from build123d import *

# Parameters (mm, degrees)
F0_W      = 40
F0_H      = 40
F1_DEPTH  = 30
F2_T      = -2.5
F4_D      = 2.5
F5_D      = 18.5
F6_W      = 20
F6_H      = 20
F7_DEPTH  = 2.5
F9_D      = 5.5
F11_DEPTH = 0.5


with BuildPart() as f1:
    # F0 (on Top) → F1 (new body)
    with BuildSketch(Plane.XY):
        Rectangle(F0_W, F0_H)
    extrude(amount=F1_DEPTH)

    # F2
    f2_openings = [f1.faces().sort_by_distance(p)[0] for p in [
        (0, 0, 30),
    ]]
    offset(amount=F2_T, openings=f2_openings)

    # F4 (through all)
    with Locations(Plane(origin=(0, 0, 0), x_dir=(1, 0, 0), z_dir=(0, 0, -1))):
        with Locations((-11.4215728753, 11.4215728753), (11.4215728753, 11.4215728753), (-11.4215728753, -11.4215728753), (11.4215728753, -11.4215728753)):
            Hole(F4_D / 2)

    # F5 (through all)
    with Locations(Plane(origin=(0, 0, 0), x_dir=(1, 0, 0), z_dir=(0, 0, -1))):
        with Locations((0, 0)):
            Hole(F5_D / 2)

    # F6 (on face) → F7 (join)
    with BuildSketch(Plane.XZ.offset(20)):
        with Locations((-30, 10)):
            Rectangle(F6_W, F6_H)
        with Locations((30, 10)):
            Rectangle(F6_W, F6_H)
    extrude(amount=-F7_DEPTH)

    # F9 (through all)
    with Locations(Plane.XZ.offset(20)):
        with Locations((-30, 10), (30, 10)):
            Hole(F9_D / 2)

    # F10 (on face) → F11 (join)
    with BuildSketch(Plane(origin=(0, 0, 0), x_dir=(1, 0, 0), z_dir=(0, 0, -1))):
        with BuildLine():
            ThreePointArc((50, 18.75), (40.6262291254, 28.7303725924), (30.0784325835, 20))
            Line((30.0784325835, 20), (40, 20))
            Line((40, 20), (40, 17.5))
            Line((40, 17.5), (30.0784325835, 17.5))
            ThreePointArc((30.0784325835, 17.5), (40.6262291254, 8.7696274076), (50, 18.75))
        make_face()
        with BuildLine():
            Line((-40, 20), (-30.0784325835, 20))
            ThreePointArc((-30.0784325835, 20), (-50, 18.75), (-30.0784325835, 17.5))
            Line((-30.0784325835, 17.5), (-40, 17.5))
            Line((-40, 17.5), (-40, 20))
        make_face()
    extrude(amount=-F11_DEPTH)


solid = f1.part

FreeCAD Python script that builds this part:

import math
import FreeCAD as App
import Part
import Sketcher


def faces_at(feature, points):
    """Names of the faces that lie closest to the given points."""
    faces = feature.Shape.Faces
    near = lambda p: min(range(len(faces)), key=lambda i: faces[i].distToShape(Part.Vertex(*p))[0])
    return sorted({f"Face{near(p) + 1}" for p in points})

doc = App.newDocument("Part")
body = doc.addObject("PartDesign::Body", "Body")

sketch1 = body.newObject("Sketcher::SketchObject", "Sketch")
sketch1.AttachmentSupport = (doc.getObject("XY_Plane"), [""])
sketch1.MapMode = "FlatFace"
sketch1.addGeometry([
    Part.LineSegment(App.Vector(-20, 20, 0), App.Vector(-20, -20, 0)),
    Part.LineSegment(App.Vector(-20, -20, 0), App.Vector(20, -20, 0)),
    Part.LineSegment(App.Vector(20, -20, 0), App.Vector(20, 20, 0)),
    Part.LineSegment(App.Vector(20, 20, 0), App.Vector(-20, 20, 0)),
], False)
sketch1.addConstraint([
    Sketcher.Constraint("Coincident", 0, 2, 1, 1),
    Sketcher.Constraint("Coincident", 1, 2, 2, 1),
    Sketcher.Constraint("Coincident", 2, 2, 3, 1),
    Sketcher.Constraint("Coincident", 3, 2, 0, 1),
    Sketcher.Constraint("Vertical", 0),
    Sketcher.Constraint("Horizontal", 1),
    Sketcher.Constraint("Vertical", 2),
    Sketcher.Constraint("Horizontal", 3),
    Sketcher.Constraint("Symmetric", 0, 2, 2, 2, -1, 1),
    Sketcher.Constraint("Equal", 3, 0),
    Sketcher.Constraint("DistanceX", 1, 1, 1, 2, 40.0),
])
pad1 = body.newObject("PartDesign::Pad", "Pad")
pad1.Profile = sketch1
pad1.Length = 30
doc.recompute()

thickness = body.newObject("PartDesign::Thickness", "Thickness")
thickness.Base = (pad1, faces_at(pad1, [(0, 0, 30)]))
thickness.Value = 2.5
thickness.Reversed = True
thickness.Join = "Arc"

sketch2 = body.newObject("Sketcher::SketchObject", "Sketch001")
sketch2.AttachmentSupport = (doc.getObject("XY_Plane"), [""])
sketch2.MapMode = "FlatFace"
sketch2.addGeometry([
    Part.Circle(App.Vector(-11.4, -11.4, 0), App.Vector(0, 0, 1), 1.2),
    Part.Circle(App.Vector(11.4, -11.4, 0), App.Vector(0, 0, 1), 1.2),
    Part.Circle(App.Vector(-11.4, 11.4, 0), App.Vector(0, 0, 1), 1.2),
    Part.Circle(App.Vector(11.4, 11.4, 0), App.Vector(0, 0, 1), 1.2),
], False)
sketch2.addConstraint([
    Sketcher.Constraint("Equal", 0, 1),
    Sketcher.Constraint("Equal", 1, 2),
    Sketcher.Constraint("Equal", 2, 3),
    Sketcher.Constraint("Symmetric", 1, 3, 2, 3, -1, 1),
    Sketcher.Constraint("Symmetric", 0, 3, 3, 3, -1, 1),
    Sketcher.Constraint("Symmetric", 0, 3, 1, 3, -2),
    Sketcher.Constraint("Diameter", 0, 2.5),
    Sketcher.Constraint("DistanceX", 0, 3, -1, 1, 11.421573),
    Sketcher.Constraint("DistanceY", 0, 3, -1, 1, 11.421573),
])
doc.recompute()
hole = body.newObject("PartDesign::Hole", "Hole")
hole.Profile = sketch2
hole.ThreadType = "None"
hole.Diameter = 2.5
hole.DepthType = "ThroughAll"
hole.Reversed = True

sketch3 = body.newObject("Sketcher::SketchObject", "Sketch002")
sketch3.AttachmentSupport = (doc.getObject("XY_Plane"), [""])
sketch3.MapMode = "FlatFace"
sketch3.addGeometry(Part.Circle(App.Vector(0, 0, 0), App.Vector(0, 0, 1), 9), False)
sketch3.addConstraint([
    Sketcher.Constraint("Coincident", 0, 3, -1, 1),
    Sketcher.Constraint("Diameter", 0, 18.5),
])
doc.recompute()
hole2 = body.newObject("PartDesign::Hole", "Hole001")
hole2.Profile = sketch3
hole2.ThreadType = "None"
hole2.Diameter = 18.5
hole2.DepthType = "ThroughAll"
hole2.Reversed = True

sketch4 = body.newObject("Sketcher::SketchObject", "Sketch003")
sketch4.AttachmentSupport = (doc.getObject("XZ_Plane"), [""])
sketch4.MapMode = "FlatFace"
sketch4.AttachmentOffset = App.Placement(App.Vector(0, 0, 20), App.Rotation())
sketch4.addGeometry([
    Part.LineSegment(App.Vector(-40, 20, 0), App.Vector(-40, 0, 0)),
    Part.LineSegment(App.Vector(-40, 0, 0), App.Vector(-20, 0, 0)),
    Part.LineSegment(App.Vector(-20, 0, 0), App.Vector(-20, 20, 0)),
    Part.LineSegment(App.Vector(-20, 20, 0), App.Vector(-40, 20, 0)),
    Part.LineSegment(App.Vector(20, 20, 0), App.Vector(20, 0, 0)),
    Part.LineSegment(App.Vector(20, 0, 0), App.Vector(40, 0, 0)),
    Part.LineSegment(App.Vector(40, 0, 0), App.Vector(40, 20, 0)),
    Part.LineSegment(App.Vector(40, 20, 0), App.Vector(20, 20, 0)),
], False)
sketch4.addConstraint([
    Sketcher.Constraint("Coincident", 0, 2, 1, 1),
    Sketcher.Constraint("Coincident", 1, 2, 2, 1),
    Sketcher.Constraint("Coincident", 2, 2, 3, 1),
    Sketcher.Constraint("Coincident", 3, 2, 0, 1),
    Sketcher.Constraint("Coincident", 4, 2, 5, 1),
    Sketcher.Constraint("Coincident", 5, 2, 6, 1),
    Sketcher.Constraint("Coincident", 6, 2, 7, 1),
    Sketcher.Constraint("Coincident", 7, 2, 4, 1),
    Sketcher.Constraint("Vertical", 0),
    Sketcher.Constraint("Horizontal", 1),
    Sketcher.Constraint("Vertical", 2),
    Sketcher.Constraint("Horizontal", 3),
    Sketcher.Constraint("Vertical", 4),
    Sketcher.Constraint("Horizontal", 5),
    Sketcher.Constraint("Vertical", 6),
    Sketcher.Constraint("Horizontal", 7),
    Sketcher.Constraint("Symmetric", 1, 2, 4, 2, -1, 1),
    Sketcher.Constraint("Symmetric", 0, 2, 5, 2, -2),
    Sketcher.Constraint("Horizontal", 3, 2, 6, 2),
    Sketcher.Constraint("Equal", 7, 0),
    Sketcher.Constraint("DistanceX", 1, 1, 1, 2, 20.0),
    Sketcher.Constraint("DistanceX", 0, 2, -1, 1, 40.0),
])
pad2 = body.newObject("PartDesign::Pad", "Pad001")
pad2.Profile = sketch4
pad2.Length = 2.5
pad2.Reversed = True

sketch5 = body.newObject("Sketcher::SketchObject", "Sketch004")
sketch5.AttachmentSupport = (doc.getObject("XZ_Plane"), [""])
sketch5.MapMode = "FlatFace"
sketch5.AttachmentOffset = App.Placement(App.Vector(0, 0, 20), App.Rotation())
sketch5.addGeometry([
    Part.Circle(App.Vector(-30, 10, 0), App.Vector(0, 0, 1), 2.8),
    Part.Circle(App.Vector(30, 10, 0), App.Vector(0, 0, 1), 2.8),
], False)
sketch5.addConstraint([
    Sketcher.Constraint("Equal", 0, 1),
    Sketcher.Constraint("Symmetric", 0, 3, 1, 3, -2),
    Sketcher.Constraint("Diameter", 0, 5.5),
    Sketcher.Constraint("DistanceX", 0, 3, -1, 1, 30.0),
    Sketcher.Constraint("DistanceY", -1, 1, 0, 3, 10.0),
])
doc.recompute()
hole3 = body.newObject("PartDesign::Hole", "Hole002")
hole3.Profile = sketch5
hole3.ThreadType = "None"
hole3.Diameter = 5.5
hole3.DepthType = "ThroughAll"

sketch6 = body.newObject("Sketcher::SketchObject", "Sketch005")
sketch6.AttachmentSupport = (doc.getObject("XY_Plane"), [""])
sketch6.MapMode = "FlatFace"
sketch6.addGeometry([
    Part.ArcOfCircle(Part.Circle(App.Vector(40, -18.8, 0), App.Vector(0, 0, 1), 10), math.radians(-173), math.radians(0)),
    Part.LineSegment(App.Vector(30.1, -20, 0), App.Vector(40, -20, 0)),
    Part.LineSegment(App.Vector(40, -20, 0), App.Vector(40, -17.5, 0)),
    Part.LineSegment(App.Vector(40, -17.5, 0), App.Vector(30.1, -17.5, 0)),
    Part.ArcOfCircle(Part.Circle(App.Vector(40, -18.8, 0), App.Vector(0, 0, 1), 10), math.radians(0), math.radians(173)),
    Part.LineSegment(App.Vector(-40, -20, 0), App.Vector(-30.1, -20, 0)),
    Part.ArcOfCircle(Part.Circle(App.Vector(-40, -18.8, 0), App.Vector(0, 0, 1), 10), math.radians(7), math.radians(353)),
    Part.LineSegment(App.Vector(-30.1, -17.5, 0), App.Vector(-40, -17.5, 0)),
    Part.LineSegment(App.Vector(-40, -17.5, 0), App.Vector(-40, -20, 0)),
], False)
sketch6.addConstraint([
    Sketcher.Constraint("Coincident", 0, 1, 1, 1),
    Sketcher.Constraint("Coincident", 1, 2, 2, 1),
    Sketcher.Constraint("Coincident", 2, 2, 3, 1),
    Sketcher.Constraint("Coincident", 3, 2, 4, 2),
    Sketcher.Constraint("Tangent", 4, 1, 0, 2),
    Sketcher.Constraint("Coincident", 5, 2, 6, 2),
    Sketcher.Constraint("Coincident", 6, 1, 7, 1),
    Sketcher.Constraint("Coincident", 7, 2, 8, 1),
    Sketcher.Constraint("Coincident", 8, 2, 5, 1),
    Sketcher.Constraint("Horizontal", 1),
    Sketcher.Constraint("Vertical", 2),
    Sketcher.Constraint("Horizontal", 3),
    Sketcher.Constraint("Horizontal", 5),
    Sketcher.Constraint("Horizontal", 7),
    Sketcher.Constraint("Vertical", 8),
    Sketcher.Constraint("Equal", 0, 4),
    Sketcher.Constraint("Equal", 4, 6),
    Sketcher.Constraint("Symmetric", 0, 3, 6, 3, -2),
    Sketcher.Constraint("Symmetric", 2, 2, 7, 2, -2),
    Sketcher.Constraint("Horizontal", 6, 3, 4, 1),
    Sketcher.Constraint("Horizontal", 1, 2, 5, 2),
    Sketcher.Constraint("Vertical", 4, 3, 1, 2),
    Sketcher.Constraint("Vertical", 0, 1, 3, 2),
    Sketcher.Constraint("Radius", 0, 10.0),
    Sketcher.Constraint("DistanceY", 2, 1, 2, 2, 2.5),
    Sketcher.Constraint("DistanceX", -1, 1, 0, 3, 40.0),
    Sketcher.Constraint("DistanceY", 0, 1, -1, 1, 20.0),
])
pad3 = body.newObject("PartDesign::Pad", "Pad002")
pad3.Profile = sketch6
pad3.Length = 0.5

doc.recompute()
